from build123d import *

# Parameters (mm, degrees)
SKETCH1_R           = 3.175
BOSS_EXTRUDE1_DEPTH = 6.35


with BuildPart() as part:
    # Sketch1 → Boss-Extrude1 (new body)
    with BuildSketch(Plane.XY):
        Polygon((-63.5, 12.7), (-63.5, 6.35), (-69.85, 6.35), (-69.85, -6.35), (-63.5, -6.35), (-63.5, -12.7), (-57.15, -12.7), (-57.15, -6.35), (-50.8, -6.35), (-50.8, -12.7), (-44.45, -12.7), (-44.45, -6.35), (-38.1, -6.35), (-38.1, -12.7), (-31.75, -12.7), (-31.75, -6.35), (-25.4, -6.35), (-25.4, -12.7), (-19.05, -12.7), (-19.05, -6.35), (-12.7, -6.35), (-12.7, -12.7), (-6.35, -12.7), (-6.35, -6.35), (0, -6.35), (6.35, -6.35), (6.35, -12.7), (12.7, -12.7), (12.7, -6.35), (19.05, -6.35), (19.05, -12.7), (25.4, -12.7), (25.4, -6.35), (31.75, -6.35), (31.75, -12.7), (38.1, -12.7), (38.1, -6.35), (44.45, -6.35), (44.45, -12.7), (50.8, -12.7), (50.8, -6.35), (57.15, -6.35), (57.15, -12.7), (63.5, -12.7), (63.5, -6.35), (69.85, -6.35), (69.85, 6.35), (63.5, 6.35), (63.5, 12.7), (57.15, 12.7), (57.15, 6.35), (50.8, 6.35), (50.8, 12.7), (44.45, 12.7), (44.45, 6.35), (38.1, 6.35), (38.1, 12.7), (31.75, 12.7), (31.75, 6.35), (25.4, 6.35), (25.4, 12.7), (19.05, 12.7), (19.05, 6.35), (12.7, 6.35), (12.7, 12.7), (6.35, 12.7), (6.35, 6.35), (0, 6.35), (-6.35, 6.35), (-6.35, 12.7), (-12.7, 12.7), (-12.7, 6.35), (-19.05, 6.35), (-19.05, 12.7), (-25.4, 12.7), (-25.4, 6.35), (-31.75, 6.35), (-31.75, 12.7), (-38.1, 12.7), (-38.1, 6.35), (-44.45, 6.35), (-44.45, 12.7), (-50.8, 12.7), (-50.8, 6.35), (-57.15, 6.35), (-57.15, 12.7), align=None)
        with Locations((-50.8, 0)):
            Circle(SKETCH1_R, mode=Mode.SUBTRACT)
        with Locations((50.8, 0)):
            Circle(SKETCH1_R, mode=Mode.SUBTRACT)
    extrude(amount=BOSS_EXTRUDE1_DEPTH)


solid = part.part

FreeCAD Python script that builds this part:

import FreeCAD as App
import Part
import Sketcher

V = App.Vector
Q = App.Units.Quantity

doc = App.newDocument("Part")
params = doc.addObject("Spreadsheet::Sheet", "Params")
for row, (alias, value) in enumerate([
    ("sketch1_diameter", "0.25 in"),
    ("sketch1_width", "0.5 in"),
    ("pad1_length", "0.25 in"),
], start=1):
    params.set(f"A{row}", alias)
    params.set(f"B{row}", "=" + value)
    params.setAlias(f"B{row}", alias)

body = doc.addObject("PartDesign::Body", "Body")

# Sketch on XY plane
sketch1 = doc.addObject("Sketcher::SketchObject", "Sketch")
body.addObject(sketch1)
sketch1.AttachmentSupport = (doc.XY_Plane, [""])
sketch1.MapMode = "FlatFace"
sketch1.addGeometry([
    Part.LineSegment(V(-63.5, 12.7, 0), V(-63.5, 6.3, 0)),  # 0
    Part.LineSegment(V(-63.5, 6.3, 0), V(-69.8, 6.3, 0)),  # 1
    Part.LineSegment(V(-69.8, 6.3, 0), V(-69.8, -6.3, 0)),  # 2
    Part.LineSegment(V(-69.8, -6.3, 0), V(-63.5, -6.3, 0)),  # 3
    Part.LineSegment(V(-63.5, -6.3, 0), V(-63.5, -12.7, 0)),  # 4
    Part.LineSegment(V(-63.5, -12.7, 0), V(-57.1, -12.7, 0)),  # 5
    Part.LineSegment(V(-57.1, -12.7, 0), V(-57.1, -6.3, 0)),  # 6
    Part.LineSegment(V(-57.1, -6.3, 0), V(-50.8, -6.3, 0)),  # 7
    Part.LineSegment(V(-50.8, -6.3, 0), V(-50.8, -12.7, 0)),  # 8
    Part.LineSegment(V(-50.8, -12.7, 0), V(-44.5, -12.7, 0)),  # 9
    Part.LineSegment(V(-44.5, -12.7, 0), V(-44.5, -6.3, 0)),  # 10
    Part.LineSegment(V(-44.5, -6.3, 0), V(-38.1, -6.3, 0)),  # 11
    Part.LineSegment(V(-38.1, -6.3, 0), V(-38.1, -12.7, 0)),  # 12
    Part.LineSegment(V(-38.1, -12.7, 0), V(-31.8, -12.7, 0)),  # 13
    Part.LineSegment(V(-31.8, -12.7, 0), V(-31.8, -6.3, 0)),  # 14
    Part.LineSegment(V(-31.8, -6.3, 0), V(-25.4, -6.3, 0)),  # 15
    Part.LineSegment(V(-25.4, -6.3, 0), V(-25.4, -12.7, 0)),  # 16
    Part.LineSegment(V(-25.4, -12.7, 0), V(-19.1, -12.7, 0)),  # 17
    Part.LineSegment(V(-19.1, -12.7, 0), V(-19.1, -6.3, 0)),  # 18
    Part.LineSegment(V(-19.1, -6.3, 0), V(-12.7, -6.3, 0)),  # 19
    Part.LineSegment(V(-12.7, -6.3, 0), V(-12.7, -12.7, 0)),  # 20
    Part.LineSegment(V(-12.7, -12.7, 0), V(-6.3, -12.7, 0)),  # 21
    Part.LineSegment(V(-6.3, -12.7, 0), V(-6.3, -6.3, 0)),  # 22
    Part.LineSegment(V(-6.3, -6.3, 0), V(6.3, -6.3, 0)),  # 23
    Part.LineSegment(V(6.3, -6.3, 0), V(6.3, -12.7, 0)),  # 24
    Part.LineSegment(V(6.3, -12.7, 0), V(12.7, -12.7, 0)),  # 25
    Part.LineSegment(V(12.7, -12.7, 0), V(12.7, -6.3, 0)),  # 26
    Part.LineSegment(V(12.7, -6.3, 0), V(19.1, -6.3, 0)),  # 27
    Part.LineSegment(V(19.1, -6.3, 0), V(19.1, -12.7, 0)),  # 28
    Part.LineSegment(V(19.1, -12.7, 0), V(25.4, -12.7, 0)),  # 29
    Part.LineSegment(V(25.4, -12.7, 0), V(25.4, -6.3, 0)),  # 30
    Part.LineSegment(V(25.4, -6.3, 0), V(31.8, -6.3, 0)),  # 31
    Part.LineSegment(V(31.8, -6.3, 0), V(31.8, -12.7, 0)),  # 32
    Part.LineSegment(V(31.8, -12.7, 0), V(38.1, -12.7, 0)),  # 33
    Part.LineSegment(V(38.1, -12.7, 0), V(38.1, -6.3, 0)),  # 34
    Part.LineSegment(V(38.1, -6.3, 0), V(44.5, -6.3, 0)),  # 35
    Part.LineSegment(V(44.5, -6.3, 0), V(44.5, -12.7, 0)),  # 36
    Part.LineSegment(V(44.5, -12.7, 0), V(50.8, -12.7, 0)),  # 37
    Part.LineSegment(V(50.8, -12.7, 0), V(50.8, -6.3, 0)),  # 38
    Part.LineSegment(V(50.8, -6.3, 0), V(57.1, -6.3, 0)),  # 39
    Part.LineSegment(V(57.1, -6.3, 0), V(57.1, -12.7, 0)),  # 40
    Part.LineSegment(V(57.1, -12.7, 0), V(63.5, -12.7, 0)),  # 41
    Part.LineSegment(V(63.5, -12.7, 0), V(63.5, -6.3, 0)),  # 42
    Part.LineSegment(V(63.5, -6.3, 0), V(69.8, -6.3, 0)),  # 43
    Part.LineSegment(V(69.8, -6.3, 0), V(69.8, 6.3, 0)),  # 44
    Part.LineSegment(V(69.8, 6.3, 0), V(63.5, 6.3, 0)),  # 45
    Part.LineSegment(V(63.5, 6.3, 0), V(63.5, 12.7, 0)),  # 46
    Part.LineSegment(V(63.5, 12.7, 0), V(57.1, 12.7, 0)),  # 47
    Part.LineSegment(V(57.1, 12.7, 0), V(57.1, 6.3, 0)),  # 48
    Part.LineSegment(V(57.1, 6.3, 0), V(50.8, 6.3, 0)),  # 49
    Part.LineSegment(V(50.8, 6.3, 0), V(50.8, 12.7, 0)),  # 50
    Part.LineSegment(V(50.8, 12.7, 0), V(44.5, 12.7, 0)),  # 51
    Part.LineSegment(V(44.5, 12.7, 0), V(44.5, 6.3, 0)),  # 52
    Part.LineSegment(V(44.5, 6.3, 0), V(38.1, 6.3, 0)),  # 53
    Part.LineSegment(V(38.1, 6.3, 0), V(38.1, 12.7, 0)),  # 54
    Part.LineSegment(V(38.1, 12.7, 0), V(31.8, 12.7, 0)),  # 55
    Part.LineSegment(V(31.8, 12.7, 0), V(31.8, 6.3, 0)),  # 56
    Part.LineSegment(V(31.8, 6.3, 0), V(25.4, 6.3, 0)),  # 57
    Part.LineSegment(V(25.4, 6.3, 0), V(25.4, 12.7, 0)),  # 58
    Part.LineSegment(V(25.4, 12.7, 0), V(19.1, 12.7, 0)),  # 59
    Part.LineSegment(V(19.1, 12.7, 0), V(19.1, 6.3, 0)),  # 60
    Part.LineSegment(V(19.1, 6.3, 0), V(12.7, 6.3, 0)),  # 61
    Part.LineSegment(V(12.7, 6.3, 0), V(12.7, 12.7, 0)),  # 62
    Part.LineSegment(V(12.7, 12.7, 0), V(6.3, 12.7, 0)),  # 63
    Part.LineSegment(V(6.3, 12.7, 0), V(6.3, 6.3, 0)),  # 64
    Part.LineSegment(V(6.3, 6.3, 0), V(-6.3, 6.3, 0)),  # 65
    Part.LineSegment(V(-6.3, 6.3, 0), V(-6.3, 12.7, 0)),  # 66
    Part.LineSegment(V(-6.3, 12.7, 0), V(-12.7, 12.7, 0)),  # 67
    Part.LineSegment(V(-12.7, 12.7, 0), V(-12.7, 6.3, 0)),  # 68
    Part.LineSegment(V(-12.7, 6.3, 0), V(-19.1, 6.3, 0)),  # 69
    Part.LineSegment(V(-19.1, 6.3, 0), V(-19.1, 12.7, 0)),  # 70
    Part.LineSegment(V(-19.1, 12.7, 0), V(-25.4, 12.7, 0)),  # 71
    Part.LineSegment(V(-25.4, 12.7, 0), V(-25.4, 6.3, 0)),  # 72
    Part.LineSegment(V(-25.4, 6.3, 0), V(-31.8, 6.3, 0)),  # 73
    Part.LineSegment(V(-31.8, 6.3, 0), V(-31.8, 12.7, 0)),  # 74
    Part.LineSegment(V(-31.8, 12.7, 0), V(-38.1, 12.7, 0)),  # 75
    Part.LineSegment(V(-38.1, 12.7, 0), V(-38.1, 6.3, 0)),  # 76
    Part.LineSegment(V(-38.1, 6.3, 0), V(-44.5, 6.3, 0)),  # 77
    Part.LineSegment(V(-44.5, 6.3, 0), V(-44.5, 12.7, 0)),  # 78
    Part.LineSegment(V(-44.5, 12.7, 0), V(-50.8, 12.7, 0)),  # 79
    Part.LineSegment(V(-50.8, 12.7, 0), V(-50.8, 6.3, 0)),  # 80
    Part.LineSegment(V(-50.8, 6.3, 0), V(-57.1, 6.3, 0)),  # 81
    Part.LineSegment(V(-57.1, 6.3, 0), V(-57.1, 12.7, 0)),  # 82
    Part.LineSegment(V(-57.1, 12.7, 0), V(-63.5, 12.7, 0)),  # 83
    Part.Circle(V(-50.8, 0, 0), V(0, 0, 1), 3.2),  # 84
    Part.Circle(V(50.8, 0, 0), V(0, 0, 1), 3.2),  # 85
], False)
sketch1.addConstraint([
    Sketcher.Constraint("Coincident", 0, 2, 1, 1),
    Sketcher.Constraint("Coincident", 1, 2, 2, 1),
    Sketcher.Constraint("Coincident", 2, 2, 3, 1),
    Sketcher.Constraint("Coincident", 3, 2, 4, 1),
    Sketcher.Constraint("Coincident", 4, 2, 5, 1),
    Sketcher.Constraint("Coincident", 5, 2, 6, 1),
    Sketcher.Constraint("Coincident", 6, 2, 7, 1),
    Sketcher.Constraint("Coincident", 7, 2, 8, 1),
    Sketcher.Constraint("Coincident", 8, 2, 9, 1),
    Sketcher.Constraint("Coincident", 9, 2, 10, 1),
    Sketcher.Constraint("Coincident", 10, 2, 11, 1),
    Sketcher.Constraint("Coincident", 11, 2, 12, 1),
    Sketcher.Constraint("Coincident", 12, 2, 13, 1),
    Sketcher.Constraint("Coincident", 13, 2, 14, 1),
    Sketcher.Constraint("Coincident", 14, 2, 15, 1),
    Sketcher.Constraint("Coincident", 15, 2, 16, 1),
    Sketcher.Constraint("Coincident", 16, 2, 17, 1),
    Sketcher.Constraint("Coincident", 17, 2, 18, 1),
    Sketcher.Constraint("Coincident", 18, 2, 19, 1),
    Sketcher.Constraint("Coincident", 19, 2, 20, 1),
    Sketcher.Constraint("Coincident", 20, 2, 21, 1),
    Sketcher.Constraint("Coincident", 21, 2, 22, 1),
    Sketcher.Constraint("Coincident", 22, 2, 23, 1),
    Sketcher.Constraint("Coincident", 23, 2, 24, 1),
    Sketcher.Constraint("Coincident", 24, 2, 25, 1),
    Sketcher.Constraint("Coincident", 25, 2, 26, 1),
    Sketcher.Constraint("Coincident", 26, 2, 27, 1),
    Sketcher.Constraint("Coincident", 27, 2, 28, 1),
    Sketcher.Constraint("Coincident", 28, 2, 29, 1),
    Sketcher.Constraint("Coincident", 29, 2, 30, 1),
    Sketcher.Constraint("Coincident", 30, 2, 31, 1),
    Sketcher.Constraint("Coincident", 31, 2, 32, 1),
    Sketcher.Constraint("Coincident", 32, 2, 33, 1),
    Sketcher.Constraint("Coincident", 33, 2, 34, 1),
    Sketcher.Constraint("Coincident", 34, 2, 35, 1),
    Sketcher.Constraint("Coincident", 35, 2, 36, 1),
    Sketcher.Constraint("Coincident", 36, 2, 37, 1),
    Sketcher.Constraint("Coincident", 37, 2, 38, 1),
    Sketcher.Constraint("Coincident", 38, 2, 39, 1),
    Sketcher.Constraint("Coincident", 39, 2, 40, 1),
    Sketcher.Constraint("Coincident", 40, 2, 41, 1),
    Sketcher.Constraint("Coincident", 41, 2, 42, 1),
    Sketcher.Constraint("Coincident", 42, 2, 43, 1),
    Sketcher.Constraint("Coincident", 43, 2, 44, 1),
    Sketcher.Constraint("Coincident", 44, 2, 45, 1),
    Sketcher.Constraint("Coincident", 45, 2, 46, 1),
    Sketcher.Constraint("Coincident", 46, 2, 47, 1),
    Sketcher.Constraint("Coincident", 47, 2, 48, 1),
    Sketcher.Constraint("Coincident", 48, 2, 49, 1),
    Sketcher.Constraint("Coincident", 49, 2, 50, 1),
    Sketcher.Constraint("Coincident", 50, 2, 51, 1),
    Sketcher.Constraint("Coincident", 51, 2, 52, 1),
    Sketcher.Constraint("Coincident", 52, 2, 53, 1),
    Sketcher.Constraint("Coincident", 53, 2, 54, 1),
    Sketcher.Constraint("Coincident", 54, 2, 55, 1),
    Sketcher.Constraint("Coincident", 55, 2, 56, 1),
    Sketcher.Constraint("Coincident", 56, 2, 57, 1),
    Sketcher.Constraint("Coincident", 57, 2, 58, 1),
    Sketcher.Constraint("Coincident", 58, 2, 59, 1),
    Sketcher.Constraint("Coincident", 59, 2, 60, 1),
    Sketcher.Constraint("Coincident", 60, 2, 61, 1),
    Sketcher.Constraint("Coincident", 61, 2, 62, 1),
    Sketcher.Constraint("Coincident", 62, 2, 63, 1),
    Sketcher.Constraint("Coincident", 63, 2, 64, 1),
    Sketcher.Constraint("Coincident", 64, 2, 65, 1),
    Sketcher.Constraint("Coincident", 65, 2, 66, 1),
    Sketcher.Constraint("Coincident", 66, 2, 67, 1),
    Sketcher.Constraint("Coincident", 67, 2, 68, 1),
    Sketcher.Constraint("Coincident", 68, 2, 69, 1),
    Sketcher.Constraint("Coincident", 69, 2, 70, 1),
    Sketcher.Constraint("Coincident", 70, 2, 71, 1),
    Sketcher.Constraint("Coincident", 71, 2, 72, 1),
    Sketcher.Constraint("Coincident", 72, 2, 73, 1),
    Sketcher.Constraint("Coincident", 73, 2, 74, 1),
    Sketcher.Constraint("Coincident", 74, 2, 75, 1),
    Sketcher.Constraint("Coincident", 75, 2, 76, 1),
    Sketcher.Constraint("Coincident", 76, 2, 77, 1),
    Sketcher.Constraint("Coincident", 77, 2, 78, 1),
    Sketcher.Constraint("Coincident", 78, 2, 79, 1),
    Sketcher.Constraint("Coincident", 79, 2, 80, 1),
    Sketcher.Constraint("Coincident", 80, 2, 81, 1),
    Sketcher.Constraint("Coincident", 81, 2, 82, 1),
    Sketcher.Constraint("Coincident", 82, 2, 83, 1),
    Sketcher.Constraint("Coincident", 83, 2, 0, 1),
    Sketcher.Constraint("Vertical", 0),
    Sketcher.Constraint("Horizontal", 1),
    Sketcher.Constraint("Vertical", 2),
    Sketcher.Constraint("Horizontal", 3),
    Sketcher.Constraint("Vertical", 4),
    Sketcher.Constraint("Horizontal", 5),
    Sketcher.Constraint("Vertical", 6),
    Sketcher.Constraint("Horizontal", 7),
    Sketcher.Constraint("Vertical", 8),
    Sketcher.Constraint("Horizontal", 9),
    Sketcher.Constraint("Vertical", 10),
    Sketcher.Constraint("Horizontal", 11),
    Sketcher.Constraint("Vertical", 12),
    Sketcher.Constraint("Horizontal", 13),
    Sketcher.Constraint("Vertical", 14),
    Sketcher.Constraint("Horizontal", 15),
    Sketcher.Constraint("Vertical", 16),
    Sketcher.Constraint("Horizontal", 17),
    Sketcher.Constraint("Vertical", 18),
    Sketcher.Constraint("Horizontal", 19),
    Sketcher.Constraint("Vertical", 20),
    Sketcher.Constraint("Horizontal", 21),
    Sketcher.Constraint("Vertical", 22),
    Sketcher.Constraint("Horizontal", 23),
    Sketcher.Constraint("Vertical", 24),
    Sketcher.Constraint("Horizontal", 25),
    Sketcher.Constraint("Vertical", 26),
    Sketcher.Constraint("Horizontal", 27),
    Sketcher.Constraint("Vertical", 28),
    Sketcher.Constraint("Horizontal", 29),
    Sketcher.Constraint("Vertical", 30),
    Sketcher.Constraint("Horizontal", 31),
    Sketcher.Constraint("Vertical", 32),
    Sketcher.Constraint("Horizontal", 33),
    Sketcher.Constraint("Vertical", 34),
    Sketcher.Constraint("Horizontal", 35),
    Sketcher.Constraint("Vertical", 36),
    Sketcher.Constraint("Horizontal", 37),
    Sketcher.Constraint("Vertical", 38),
    Sketcher.Constraint("Horizontal", 39),
    Sketcher.Constraint("Vertical", 40),
    Sketcher.Constraint("Horizontal", 41),
    Sketcher.Constraint("Vertical", 42),
    Sketcher.Constraint("Horizontal", 43),
    Sketcher.Constraint("Vertical", 44),
    Sketcher.Constraint("Horizontal", 45),
    Sketcher.Constraint("Vertical", 46),
    Sketcher.Constraint("Horizontal", 47),
    Sketcher.Constraint("Vertical", 48),
    Sketcher.Constraint("Horizontal", 49),
    Sketcher.Constraint("Vertical", 50),
    Sketcher.Constraint("Horizontal", 51),
    Sketcher.Constraint("Vertical", 52),
    Sketcher.Constraint("Horizontal", 53),
    Sketcher.Constraint("Vertical", 54),
    Sketcher.Constraint("Horizontal", 55),
    Sketcher.Constraint("Vertical", 56),
    Sketcher.Constraint("Horizontal", 57),
    Sketcher.Constraint("Vertical", 58),
    Sketcher.Constraint("Horizontal", 59),
    Sketcher.Constraint("Vertical", 60),
    Sketcher.Constraint("Horizontal", 61),
    Sketcher.Constraint("Vertical", 62),
    Sketcher.Constraint("Horizontal", 63),
    Sketcher.Constraint("Vertical", 64),
    Sketcher.Constraint("Horizontal", 65),
    Sketcher.Constraint("Vertical", 66),
    Sketcher.Constraint("Horizontal", 67),
    Sketcher.Constraint("Vertical", 68),
    Sketcher.Constraint("Horizontal", 69),
    Sketcher.Constraint("Vertical", 70),
    Sketcher.Constraint("Horizontal", 71),
    Sketcher.Constraint("Vertical", 72),
    Sketcher.Constraint("Horizontal", 73),
    Sketcher.Constraint("Vertical", 74),
    Sketcher.Constraint("Horizontal", 75),
    Sketcher.Constraint("Vertical", 76),
    Sketcher.Constraint("Horizontal", 77),
    Sketcher.Constraint("Vertical", 78),
    Sketcher.Constraint("Horizontal", 79),
    Sketcher.Constraint("Vertical", 80),
    Sketcher.Constraint("Horizontal", 81),
    Sketcher.Constraint("Vertical", 82),
    Sketcher.Constraint("Horizontal", 83),
    Sketcher.Constraint("Equal", 84, 85),
    Sketcher.Constraint("Symmetric", 84, 3, 85, 3, -1, 1),
    Sketcher.Constraint("Symmetric", 0, 2, 42, 2, -1, 1),
    Sketcher.Constraint("Symmetric", 2, 2, 44, 2, -1, 1),
    Sketcher.Constraint("Symmetric", 4, 2, 46, 2, -1, 1),
    Sketcher.Constraint("Symmetric", 6, 2, 48, 2, -1, 1),
    Sketcher.Constraint("Symmetric", 8, 2, 50, 2, -1, 1),
    Sketcher.Constraint("Symmetric", 10, 2, 52, 2, -1, 1),
    Sketcher.Constraint("Symmetric", 12, 2, 54, 2, -1, 1),
    Sketcher.Constraint("Symmetric", 14, 2, 56, 2, -1, 1),
    Sketcher.Constraint("Symmetric", 16, 2, 58, 2, -1, 1),
    Sketcher.Constraint("Symmetric", 18, 2, 60, 2, -1, 1),
    Sketcher.Constraint("Symmetric", 20, 2, 62, 2, -1, 1),
    Sketcher.Constraint("Symmetric", 22, 2, 64, 2, -1, 1),
    Sketcher.Constraint("Symmetric", 24, 2, 66, 2, -1, 1),
    Sketcher.Constraint("Symmetric", 26, 2, 68, 2, -1, 1),
    Sketcher.Constraint("Symmetric", 28, 2, 70, 2, -1, 1),
    Sketcher.Constraint("Symmetric", 30, 2, 72, 2, -1, 1),
    Sketcher.Constraint("Symmetric", 32, 2, 74, 2, -1, 1),
    Sketcher.Constraint("Symmetric", 34, 2, 76, 2, -1, 1),
    Sketcher.Constraint("Symmetric", 36, 2, 78, 2, -1, 1),
    Sketcher.Constraint("Symmetric", 38, 2, 80, 2, -1, 1),
    Sketcher.Constraint("Symmetric", 40, 2, 82, 2, -1, 1),
    Sketcher.Constraint("Symmetric", 21, 2, 24, 2, -2),
    Sketcher.Constraint("Symmetric", 19, 2, 26, 2, -2),
    Sketcher.Constraint("Symmetric", 17, 2, 28, 2, -2),
    Sketcher.Constraint("Symmetric", 15, 2, 30, 2, -2),
    Sketcher.Constraint("Symmetric", 13, 2, 32, 2, -2),
    Sketcher.Constraint("Symmetric", 11, 2, 34, 2, -2),
    Sketcher.Constraint("Symmetric", 9, 2, 36, 2, -2),
    Sketcher.Constraint("Symmetric", 7, 2, 38, 2, -2),
    Sketcher.Constraint("Symmetric", 5, 2, 40, 2, -2),
    Sketcher.Constraint("Symmetric", 3, 2, 42, 2, -2),
    Sketcher.Constraint("PointOnObject", 84, 3, -1),
    Sketcher.Constraint("Horizontal", 3, 2, 6, 2),
    Sketcher.Constraint("Horizontal", 5, 2, 8, 2),
    Sketcher.Constraint("Horizontal", 7, 2, 10, 2),
    Sketcher.Constraint("Horizontal", 9, 2, 12, 2),
    Sketcher.Constraint("Horizontal", 11, 2, 14, 2),
    Sketcher.Constraint("Horizontal", 13, 2, 16, 2),
    Sketcher.Constraint("Horizontal", 15, 2, 18, 2),
    Sketcher.Constraint("Horizontal", 17, 2, 20, 2),
    Sketcher.Constraint("Horizontal", 19, 2, 22, 2),
    Sketcher.Constraint("Vertical", 84, 3, 7, 2),
    Sketcher.Constraint("Equal", 3, 5),
    Sketcher.Constraint("Equal", 5, 7),
    Sketcher.Constraint("Equal", 7, 9),
    Sketcher.Constraint("Equal", 9, 11),
    Sketcher.Constraint("Equal", 11, 13),
    Sketcher.Constraint("Equal", 13, 15),
    Sketcher.Constraint("Equal", 15, 17),
    Sketcher.Constraint("Equal", 17, 19),
    Sketcher.Constraint("Equal", 19, 21),
    Sketcher.Constraint("Equal", 83, 0),
    Sketcher.Constraint("Equal", 65, 2),
    Sketcher.Constraint("Diameter", 84, Q("0.25 in")),
    Sketcher.Constraint("DistanceX", 23, 1, 23, 2, Q("0.5 in")),
    Sketcher.Constraint("DistanceX", 84, 3, -1, 1, Q("2 in")),
])
sketch1.setExpression("Constraints[223]", "Params.sketch1_diameter")
sketch1.setExpression("Constraints[224]", "Params.sketch1_width")
pad1 = doc.addObject("PartDesign::Pad", "Pad")
body.addObject(pad1)
pad1.Profile = sketch1
pad1.setExpression("Length", "Params.pad1_length")

doc.recompute()
